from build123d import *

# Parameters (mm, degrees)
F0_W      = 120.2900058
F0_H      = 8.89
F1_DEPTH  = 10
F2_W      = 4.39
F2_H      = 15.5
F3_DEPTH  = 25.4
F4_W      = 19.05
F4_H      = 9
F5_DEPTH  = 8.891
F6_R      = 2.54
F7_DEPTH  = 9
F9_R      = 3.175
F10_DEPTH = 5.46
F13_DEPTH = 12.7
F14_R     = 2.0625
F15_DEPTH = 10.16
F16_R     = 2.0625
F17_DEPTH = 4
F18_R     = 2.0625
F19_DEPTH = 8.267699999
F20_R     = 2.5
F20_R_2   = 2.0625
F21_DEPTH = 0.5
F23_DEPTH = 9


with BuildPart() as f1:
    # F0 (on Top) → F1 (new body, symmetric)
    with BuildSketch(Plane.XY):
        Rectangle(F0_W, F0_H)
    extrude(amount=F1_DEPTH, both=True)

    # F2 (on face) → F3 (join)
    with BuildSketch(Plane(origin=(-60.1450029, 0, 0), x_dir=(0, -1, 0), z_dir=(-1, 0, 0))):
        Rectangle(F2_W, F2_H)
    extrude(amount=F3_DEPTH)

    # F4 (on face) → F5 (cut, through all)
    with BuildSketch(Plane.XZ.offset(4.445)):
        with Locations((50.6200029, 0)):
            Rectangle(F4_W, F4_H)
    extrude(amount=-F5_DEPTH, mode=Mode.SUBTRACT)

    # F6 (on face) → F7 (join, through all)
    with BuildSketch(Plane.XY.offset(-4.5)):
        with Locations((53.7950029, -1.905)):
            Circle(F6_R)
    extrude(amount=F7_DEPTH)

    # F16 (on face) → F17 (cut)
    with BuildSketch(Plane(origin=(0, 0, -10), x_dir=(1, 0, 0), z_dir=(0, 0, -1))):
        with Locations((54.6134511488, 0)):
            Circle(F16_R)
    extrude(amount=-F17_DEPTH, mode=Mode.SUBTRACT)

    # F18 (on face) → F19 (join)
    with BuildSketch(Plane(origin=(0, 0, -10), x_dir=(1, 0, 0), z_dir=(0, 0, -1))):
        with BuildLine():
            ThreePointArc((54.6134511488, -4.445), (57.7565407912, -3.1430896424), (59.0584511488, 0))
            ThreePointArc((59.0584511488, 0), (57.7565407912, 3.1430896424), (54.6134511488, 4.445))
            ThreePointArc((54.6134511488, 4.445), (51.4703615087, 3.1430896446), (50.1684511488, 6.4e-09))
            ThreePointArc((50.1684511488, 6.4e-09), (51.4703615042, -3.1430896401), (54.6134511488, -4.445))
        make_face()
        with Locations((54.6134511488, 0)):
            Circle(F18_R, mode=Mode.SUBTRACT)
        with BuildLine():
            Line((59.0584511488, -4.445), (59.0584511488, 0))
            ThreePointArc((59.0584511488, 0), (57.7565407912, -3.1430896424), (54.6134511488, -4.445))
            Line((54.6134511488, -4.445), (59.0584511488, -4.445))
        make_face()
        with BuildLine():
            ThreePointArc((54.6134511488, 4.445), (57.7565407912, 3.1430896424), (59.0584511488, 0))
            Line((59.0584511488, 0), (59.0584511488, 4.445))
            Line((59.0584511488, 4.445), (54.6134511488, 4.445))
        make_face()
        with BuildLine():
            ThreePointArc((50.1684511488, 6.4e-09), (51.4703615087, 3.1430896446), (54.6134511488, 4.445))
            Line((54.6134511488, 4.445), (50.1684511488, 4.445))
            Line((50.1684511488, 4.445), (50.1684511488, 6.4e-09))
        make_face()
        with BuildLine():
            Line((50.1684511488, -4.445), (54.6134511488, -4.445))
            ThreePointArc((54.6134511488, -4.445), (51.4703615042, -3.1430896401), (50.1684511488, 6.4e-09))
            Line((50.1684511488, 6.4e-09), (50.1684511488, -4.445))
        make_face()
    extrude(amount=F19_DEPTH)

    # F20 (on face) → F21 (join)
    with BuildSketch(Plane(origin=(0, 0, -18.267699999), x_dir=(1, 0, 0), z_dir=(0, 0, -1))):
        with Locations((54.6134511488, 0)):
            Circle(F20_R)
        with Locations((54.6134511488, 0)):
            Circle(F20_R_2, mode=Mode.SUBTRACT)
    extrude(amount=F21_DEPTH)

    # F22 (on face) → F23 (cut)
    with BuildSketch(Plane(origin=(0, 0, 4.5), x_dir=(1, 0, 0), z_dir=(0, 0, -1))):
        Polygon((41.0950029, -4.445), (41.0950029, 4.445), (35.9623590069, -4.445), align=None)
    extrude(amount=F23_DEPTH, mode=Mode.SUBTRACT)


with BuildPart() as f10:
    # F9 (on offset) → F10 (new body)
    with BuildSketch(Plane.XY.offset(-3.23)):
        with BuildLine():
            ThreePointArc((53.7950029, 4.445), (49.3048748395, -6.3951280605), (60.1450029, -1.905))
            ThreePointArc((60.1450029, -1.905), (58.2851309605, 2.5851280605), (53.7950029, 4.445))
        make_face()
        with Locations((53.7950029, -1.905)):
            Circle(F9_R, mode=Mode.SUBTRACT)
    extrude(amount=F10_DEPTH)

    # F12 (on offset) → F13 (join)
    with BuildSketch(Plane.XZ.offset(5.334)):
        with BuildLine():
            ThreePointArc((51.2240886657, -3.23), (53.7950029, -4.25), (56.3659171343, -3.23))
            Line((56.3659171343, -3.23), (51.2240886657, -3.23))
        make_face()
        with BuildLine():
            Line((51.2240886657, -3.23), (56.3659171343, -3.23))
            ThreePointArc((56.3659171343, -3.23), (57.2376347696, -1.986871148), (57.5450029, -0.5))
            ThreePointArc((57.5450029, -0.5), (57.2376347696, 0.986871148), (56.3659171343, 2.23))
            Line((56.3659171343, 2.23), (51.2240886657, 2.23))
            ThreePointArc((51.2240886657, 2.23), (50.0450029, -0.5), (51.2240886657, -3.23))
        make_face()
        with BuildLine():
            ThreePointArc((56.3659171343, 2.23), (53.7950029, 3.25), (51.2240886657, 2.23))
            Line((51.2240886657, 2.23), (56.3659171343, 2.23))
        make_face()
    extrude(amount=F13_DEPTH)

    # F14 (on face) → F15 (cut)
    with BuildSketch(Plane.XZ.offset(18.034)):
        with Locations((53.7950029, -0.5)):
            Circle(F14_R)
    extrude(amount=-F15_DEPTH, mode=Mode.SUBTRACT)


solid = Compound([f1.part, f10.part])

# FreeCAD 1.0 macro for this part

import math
import FreeCAD as App
import Part
import Sketcher
from FreeCAD import Vector
Q = App.Units.Quantity

doc = App.newDocument("Part")
body = doc.addObject("PartDesign::Body", "Body")

sketch1 = doc.addObject("Sketcher::SketchObject", "Sketch")
body.addObject(sketch1)
sketch1.AttachmentSupport = (doc.XY_Plane, [""])
sketch1.MapMode = "FlatFace"
sketch1.addGeometry([
    Part.LineSegment(Vector(-60, 4, 0), Vector(-60, -4, 0)),
    Part.LineSegment(Vector(-60, -4, 0), Vector(60, -4, 0)),
    Part.LineSegment(Vector(60, -4, 0), Vector(60, 4, 0)),
    Part.LineSegment(Vector(60, 4, 0), Vector(-60, 4, 0)),
], False)
sketch1.addConstraint([
    Sketcher.Constraint("Coincident", 0, 2, 1, 1),
    Sketcher.Constraint("Coincident", 1, 2, 2, 1),
    Sketcher.Constraint("Coincident", 2, 2, 3, 1),
    Sketcher.Constraint("Coincident", 3, 2, 0, 1),
    Sketcher.Constraint("Vertical", 0),
    Sketcher.Constraint("Horizontal", 1),
    Sketcher.Constraint("Vertical", 2),
    Sketcher.Constraint("Horizontal", 3),
    Sketcher.Constraint("Symmetric", 0, 2, 2, 2, -1, 1),
    Sketcher.Constraint("DistanceY", 0, 2, 0, 1, 8.89),
    Sketcher.Constraint("DistanceX", 1, 1, 1, 2, 120.290006),
])
pad1 = doc.addObject("PartDesign::Pad", "Pad")
body.addObject(pad1)
pad1.Profile = sketch1
pad1.Length = 20
pad1.Midplane = True

sketch2 = doc.addObject("Sketcher::SketchObject", "Sketch001")
body.addObject(sketch2)
sketch2.AttachmentSupport = (doc.YZ_Plane, [""])
sketch2.MapMode = "FlatFace"
sketch2.AttachmentOffset = App.Placement(Vector(0, 0, -60.145003), App.Rotation())
sketch2.addGeometry([
    Part.LineSegment(Vector(2.2, 7.8, 0), Vector(2.2, -7.8, 0)),
    Part.LineSegment(Vector(2.2, -7.8, 0), Vector(-2.2, -7.8, 0)),
    Part.LineSegment(Vector(-2.2, -7.8, 0), Vector(-2.2, 7.8, 0)),
    Part.LineSegment(Vector(-2.2, 7.8, 0), Vector(2.2, 7.8, 0)),
], False)
sketch2.addConstraint([
    Sketcher.Constraint("Coincident", 0, 2, 1, 1),
    Sketcher.Constraint("Coincident", 1, 2, 2, 1),
    Sketcher.Constraint("Coincident", 2, 2, 3, 1),
    Sketcher.Constraint("Coincident", 3, 2, 0, 1),
    Sketcher.Constraint("Vertical", 0),
    Sketcher.Constraint("Horizontal", 1),
    Sketcher.Constraint("Vertical", 2),
    Sketcher.Constraint("Horizontal", 3),
    Sketcher.Constraint("Symmetric", 0, 2, 2, 2, -1, 1),
    Sketcher.Constraint("DistanceY", 0, 2, 0, 1, 15.5),
    Sketcher.Constraint("DistanceX", 1, 2, 1, 1, 4.39),
])
pad2 = doc.addObject("PartDesign::Pad", "Pad001")
body.addObject(pad2)
pad2.Profile = sketch2
pad2.Length = 25.4
pad2.Reversed = True

sketch3 = doc.addObject("Sketcher::SketchObject", "Sketch002")
body.addObject(sketch3)
sketch3.AttachmentSupport = (doc.XZ_Plane, [""])
sketch3.MapMode = "FlatFace"
sketch3.AttachmentOffset = App.Placement(Vector(0, 0, 4.445), App.Rotation())
sketch3.addGeometry([
    Part.LineSegment(Vector(41, 4, 0), Vector(41, -4, 0)),
    Part.LineSegment(Vector(41, -4, 0), Vector(60, -4, 0)),
    Part.LineSegment(Vector(60, -4, 0), Vector(60, 4, 0)),
    Part.LineSegment(Vector(60, 4, 0), Vector(41, 4, 0)),
], False)
sketch3.addConstraint([
    Sketcher.Constraint("Coincident", 0, 2, 1, 1),
    Sketcher.Constraint("Coincident", 1, 2, 2, 1),
    Sketcher.Constraint("Coincident", 2, 2, 3, 1),
    Sketcher.Constraint("Coincident", 3, 2, 0, 1),
    Sketcher.Constraint("Vertical", 0),
    Sketcher.Constraint("Horizontal", 1),
    Sketcher.Constraint("Vertical", 2),
    Sketcher.Constraint("Horizontal", 3),
    Sketcher.Constraint("DistanceY", 0, 2, 0, 1, 9.0),
    Sketcher.Constraint("DistanceX", 1, 1, 1, 2, 19.05),
    Sketcher.Constraint("DistanceY", 0, 2, -1, 1, 4.5),
    Sketcher.Constraint("DistanceX", -1, 1, 0, 2, 41.095003),
])
pocket1 = doc.addObject("PartDesign::Pocket", "Pocket")
body.addObject(pocket1)
pocket1.Profile = sketch3
pocket1.Type = "ThroughAll"

sketch4 = doc.addObject("Sketcher::SketchObject", "Sketch003")
body.addObject(sketch4)
sketch4.AttachmentSupport = (doc.XY_Plane, [""])
sketch4.MapMode = "FlatFace"
sketch4.AttachmentOffset = App.Placement(Vector(0, 0, -4.5), App.Rotation())
sketch4.addGeometry(Part.Circle(Vector(53.8, -1.9, 0), Vector(0, 0, 1), 2.5), False)
sketch4.addConstraint([
    Sketcher.Constraint("Diameter", 0, 5.08),
    Sketcher.Constraint("DistanceY", 0, 3, -1, 1, 1.905),
    Sketcher.Constraint("DistanceX", -1, 1, 0, 3, 53.795003),
])
pad3 = doc.addObject("PartDesign::Pad", "Pad002")
body.addObject(pad3)
pad3.Profile = sketch4
pad3.Type = "UpToLast"

sketch5 = doc.addObject("Sketcher::SketchObject", "Sketch004")
body.addObject(sketch5)
sketch5.AttachmentSupport = (doc.XY_Plane, [""])
sketch5.MapMode = "FlatFace"
sketch5.AttachmentOffset = App.Placement(Vector(0, 0, -10), App.Rotation())
sketch5.addGeometry(Part.Circle(Vector(54.6, 0, 0), Vector(0, 0, 1), 2.1), False)
sketch5.addConstraint([
    Sketcher.Constraint("PointOnObject", 0, 3, -1),
    Sketcher.Constraint("Diameter", 0, 4.125),
    Sketcher.Constraint("DistanceX", -1, 1, 0, 3, 54.613451),
])
pocket2 = doc.addObject("PartDesign::Pocket", "Pocket001")
body.addObject(pocket2)
pocket2.Profile = sketch5
pocket2.Length = 4
pocket2.Reversed = True

sketch6 = doc.addObject("Sketcher::SketchObject", "Sketch005")
body.addObject(sketch6)
sketch6.AttachmentSupport = (doc.XY_Plane, [""])
sketch6.MapMode = "FlatFace"
sketch6.AttachmentOffset = App.Placement(Vector(0, 0, -10), App.Rotation())
sketch6.addGeometry([
    Part.LineSegment(Vector(59.1, 4.4, 0), Vector(59.1, -4.4, 0)),
    Part.LineSegment(Vector(59.1, -4.4, 0), Vector(50.2, -4.4, 0)),
    Part.LineSegment(Vector(50.2, -4.4, 0), Vector(50.2, 4.4, 0)),
    Part.LineSegment(Vector(50.2, 4.4, 0), Vector(59.1, 4.4, 0)),
    Part.Circle(Vector(54.6, 0, 0), Vector(0, 0, 1), 2.1),
], False)
sketch6.addConstraint([
    Sketcher.Constraint("Coincident", 0, 2, 1, 1),
    Sketcher.Constraint("Coincident", 1, 2, 2, 1),
    Sketcher.Constraint("Coincident", 2, 2, 3, 1),
    Sketcher.Constraint("Coincident", 3, 2, 0, 1),
    Sketcher.Constraint("Vertical", 0),
    Sketcher.Constraint("Horizontal", 1),
    Sketcher.Constraint("Vertical", 2),
    Sketcher.Constraint("Horizontal", 3),
    Sketcher.Constraint("PointOnObject", 4, 3, -1),
    Sketcher.Constraint("Equal", 3, 0),
    Sketcher.Constraint("Diameter", 4, 4.125),
    Sketcher.Constraint("DistanceX", 1, 2, 1, 1, 8.89),
    Sketcher.Constraint("DistanceY", 0, 2, -1, 1, 4.445),
    Sketcher.Constraint("DistanceX", 4, 3, 0, 2, 4.445),
    Sketcher.Constraint("DistanceX", -1, 1, 4, 3, 54.613451),
])
pad4 = doc.addObject("PartDesign::Pad", "Pad003")
body.addObject(pad4)
pad4.Profile = sketch6
pad4.Length = 8.2677
pad4.Reversed = True

sketch7 = doc.addObject("Sketcher::SketchObject", "Sketch006")
body.addObject(sketch7)
sketch7.AttachmentSupport = (doc.XY_Plane, [""])
sketch7.MapMode = "FlatFace"
sketch7.AttachmentOffset = App.Placement(Vector(0, 0, -18.2677), App.Rotation())
sketch7.addGeometry([
    Part.Circle(Vector(54.6, 0, 0), Vector(0, 0, 1), 2.5),
    Part.Circle(Vector(54.6, 0, 0), Vector(0, 0, 1), 2.1),
], False)
sketch7.addConstraint([
    Sketcher.Constraint("Coincident", 1, 3, 0, 3),
    Sketcher.Constraint("PointOnObject", 0, 3, -1),
    Sketcher.Constraint("Diameter", 0, 5.0),
    Sketcher.Constraint("Diameter", 1, 4.125),
    Sketcher.Constraint("DistanceX", -1, 1, 0, 3, 54.613451),
])
pad5 = doc.addObject("PartDesign::Pad", "Pad004")
body.addObject(pad5)
pad5.Profile = sketch7
pad5.Length = 0.5
pad5.Reversed = True

sketch8 = doc.addObject("Sketcher::SketchObject", "Sketch007")
body.addObject(sketch8)
sketch8.AttachmentSupport = (doc.XY_Plane, [""])
sketch8.MapMode = "FlatFace"
sketch8.AttachmentOffset = App.Placement(Vector(0, 0, 4.5), App.Rotation())
sketch8.addGeometry([
    Part.LineSegment(Vector(41, 4, 0), Vector(41, -4, 0)),
    Part.LineSegment(Vector(41, -4, 0), Vector(36, 4, 0)),
    Part.LineSegment(Vector(36, 4, 0), Vector(41, 4, 0)),
], False)
sketch8.addConstraint([
    Sketcher.Constraint("Coincident", 0, 2, 1, 1),
    Sketcher.Constraint("Coincident", 1, 2, 2, 1),
    Sketcher.Constraint("Coincident", 2, 2, 0, 1),
    Sketcher.Constraint("Vertical", 0),
    Sketcher.Constraint("Horizontal", 2),
    Sketcher.Constraint("Angle", 1, Q("120 deg")),
    Sketcher.Constraint("DistanceY", 0, 2, 0, 1, 8.89),
    Sketcher.Constraint("DistanceY", 0, 2, -1, 1, 4.445),
    Sketcher.Constraint("DistanceX", -1, 1, 1, 2, 35.962359),
])
pocket3 = doc.addObject("PartDesign::Pocket", "Pocket002")
body.addObject(pocket3)
pocket3.Profile = sketch8
pocket3.Length = 9
body2 = doc.addObject("PartDesign::Body", "Body001")

sketch9 = doc.addObject("Sketcher::SketchObject", "Sketch008")
body2.addObject(sketch9)
sketch9.AttachmentSupport = (doc.getObject("XY_Plane001"), [""])
sketch9.MapMode = "FlatFace"
sketch9.AttachmentOffset = App.Placement(Vector(0, 0, -3.23), App.Rotation())
sketch9.addGeometry([
    Part.ArcOfCircle(Part.Circle(Vector(53.8, -1.9, 0), Vector(0, 0, 1), 6.3), math.radians(90), math.radians(360)),
    Part.ArcOfCircle(Part.Circle(Vector(53.8, -1.9, 0), Vector(0, 0, 1), 6.3), math.radians(0), math.radians(90)),
    Part.Circle(Vector(53.8, -1.9, 0), Vector(0, 0, 1), 3.2),
], False)
sketch9.addConstraint([
    Sketcher.Constraint("Tangent", 0, 1, 1, 2),
    Sketcher.Constraint("Coincident", 1, 1, 0, 2),
    Sketcher.Constraint("Coincident", 2, 3, 0, 3),
    Sketcher.Constraint("Horizontal", 2, 3, 1, 1),
    Sketcher.Constraint("Vertical", 2, 3, 0, 1),
    Sketcher.Constraint("Diameter", 2, 6.35),
    Sketcher.Constraint("Radius", 0, 6.35),
    Sketcher.Constraint("DistanceY", 0, 3, -1, 1, 1.905),
    Sketcher.Constraint("DistanceX", -1, 1, 0, 3, 53.795003),
])
pad6 = doc.addObject("PartDesign::Pad", "Pad005")
body2.addObject(pad6)
pad6.Profile = sketch9
pad6.Length = 5.46

sketch10 = doc.addObject("Sketcher::SketchObject", "Sketch009")
body2.addObject(sketch10)
sketch10.AttachmentSupport = (doc.getObject("XZ_Plane001"), [""])
sketch10.MapMode = "FlatFace"
sketch10.AttachmentOffset = App.Placement(Vector(0, 0, 5.334), App.Rotation())
sketch10.addGeometry([
    Part.ArcOfCircle(Part.Circle(Vector(53.8, -0.5, 0), Vector(0, 0, 1), 3.8), math.radians(-133), math.radians(-47)),
    Part.ArcOfCircle(Part.Circle(Vector(53.8, -0.5, 0), Vector(0, 0, 1), 3.8), math.radians(-47), math.radians(0)),
    Part.ArcOfCircle(Part.Circle(Vector(53.8, -0.5, 0), Vector(0, 0, 1), 3.8), math.radians(0), math.radians(47)),
    Part.ArcOfCircle(Part.Circle(Vector(53.8, -0.5, 0), Vector(0, 0, 1), 3.8), math.radians(47), math.radians(133)),
    Part.ArcOfCircle(Part.Circle(Vector(53.8, -0.5, 0), Vector(0, 0, 1), 3.8), math.radians(133), math.radians(227)),
], False)
sketch10.addConstraint([
    Sketcher.Constraint("Tangent", 0, 2, 1, 1),
    Sketcher.Constraint("Tangent", 1, 2, 2, 1),
    Sketcher.Constraint("Tangent", 2, 2, 3, 1),
    Sketcher.Constraint("Tangent", 3, 2, 4, 1),
    Sketcher.Constraint("Tangent", 4, 2, 0, 1),
    Sketcher.Constraint("Coincident", 2, 3, 0, 3),
    Sketcher.Constraint("Horizontal", 4, 3, 1, 2),
    Sketcher.Constraint("Horizontal", 2, 2, 3, 2),
    Sketcher.Constraint("Horizontal", 0, 2, 4, 2),
    Sketcher.Constraint("Vertical", 0, 2, 2, 2),
    Sketcher.Constraint("Radius", 0, 3.75),
    Sketcher.Constraint("DistanceY", 0, 3, -1, 1, 0.5),
    Sketcher.Constraint("DistanceY", 0, 2, -1, 1, 3.23),
    Sketcher.Constraint("DistanceX", -1, 1, 3, 2, 51.224089),
])
pad7 = doc.addObject("PartDesign::Pad", "Pad006")
body2.addObject(pad7)
pad7.Profile = sketch10
pad7.Length = 12.7

sketch11 = doc.addObject("Sketcher::SketchObject", "Sketch010")
body2.addObject(sketch11)
sketch11.AttachmentSupport = (doc.getObject("XZ_Plane001"), [""])
sketch11.MapMode = "FlatFace"
sketch11.AttachmentOffset = App.Placement(Vector(0, 0, 18.034), App.Rotation())
sketch11.addGeometry(Part.Circle(Vector(53.8, -0.5, 0), Vector(0, 0, 1), 2.1), False)
sketch11.addConstraint([
    Sketcher.Constraint("Diameter", 0, 4.125),
    Sketcher.Constraint("DistanceY", 0, 3, -1, 1, 0.5),
    Sketcher.Constraint("DistanceX", -1, 1, 0, 3, 53.795003),
])
pocket4 = doc.addObject("PartDesign::Pocket", "Pocket003")
body2.addObject(pocket4)
pocket4.Profile = sketch11
pocket4.Length = 10.16

doc.recompute()
